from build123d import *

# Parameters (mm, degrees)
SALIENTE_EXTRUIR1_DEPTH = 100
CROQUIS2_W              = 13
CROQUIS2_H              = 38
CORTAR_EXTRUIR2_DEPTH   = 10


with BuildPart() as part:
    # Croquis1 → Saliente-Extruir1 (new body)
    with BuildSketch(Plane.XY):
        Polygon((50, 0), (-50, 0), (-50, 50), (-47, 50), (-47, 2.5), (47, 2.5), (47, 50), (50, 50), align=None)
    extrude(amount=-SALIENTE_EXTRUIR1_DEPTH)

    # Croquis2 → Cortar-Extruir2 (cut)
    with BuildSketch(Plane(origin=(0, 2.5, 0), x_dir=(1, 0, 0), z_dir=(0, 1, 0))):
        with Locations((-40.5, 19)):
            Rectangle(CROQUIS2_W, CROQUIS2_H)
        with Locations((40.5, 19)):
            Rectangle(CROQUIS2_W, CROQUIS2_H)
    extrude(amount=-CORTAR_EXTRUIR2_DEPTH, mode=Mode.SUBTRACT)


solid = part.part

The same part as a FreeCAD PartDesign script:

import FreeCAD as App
import Part
import Sketcher
from FreeCAD import Vector
Q = App.Units.Quantity

doc = App.newDocument("Part")
body = doc.addObject("PartDesign::Body", "Body")

# Sketch on XY plane
sketch1 = body.newObject("Sketcher::SketchObject", "Sketch")
sketch1.AttachmentSupport = (doc.getObject("XY_Plane"), [""])
sketch1.MapMode = "FlatFace"
sketch1.addGeometry(Part.LineSegment(Vector(-50, 0, 0), Vector(50, 0, 0)), False)
sketch1.addGeometry(Part.LineSegment(Vector(50, 0, 0), Vector(50, 50, 0)), False)
sketch1.addGeometry(Part.LineSegment(Vector(50, 50, 0), Vector(47, 50, 0)), False)
sketch1.addGeometry(Part.LineSegment(Vector(47, 50, 0), Vector(47, 2.5, 0)), False)
sketch1.addGeometry(Part.LineSegment(Vector(47, 2.5, 0), Vector(-47, 2.5, 0)), False)
sketch1.addGeometry(Part.LineSegment(Vector(-47, 2.5, 0), Vector(-47, 50, 0)), False)
sketch1.addGeometry(Part.LineSegment(Vector(-47, 50, 0), Vector(-50, 50, 0)), False)
sketch1.addGeometry(Part.LineSegment(Vector(-50, 50, 0), Vector(-50, 0, 0)), False)
sketch1.addConstraint(Sketcher.Constraint("Coincident", 0, 2, 1, 1))
sketch1.addConstraint(Sketcher.Constraint("Coincident", 1, 2, 2, 1))
sketch1.addConstraint(Sketcher.Constraint("Coincident", 2, 2, 3, 1))
sketch1.addConstraint(Sketcher.Constraint("Coincident", 3, 2, 4, 1))
sketch1.addConstraint(Sketcher.Constraint("Coincident", 4, 2, 5, 1))
sketch1.addConstraint(Sketcher.Constraint("Coincident", 5, 2, 6, 1))
sketch1.addConstraint(Sketcher.Constraint("Coincident", 6, 2, 7, 1))
sketch1.addConstraint(Sketcher.Constraint("Coincident", 7, 2, 0, 1))
sketch1.addConstraint(Sketcher.Constraint("Horizontal", 0))
sketch1.addConstraint(Sketcher.Constraint("Vertical", 1))
sketch1.addConstraint(Sketcher.Constraint("Horizontal", 2))
sketch1.addConstraint(Sketcher.Constraint("Vertical", 3))
sketch1.addConstraint(Sketcher.Constraint("Horizontal", 4))
sketch1.addConstraint(Sketcher.Constraint("Vertical", 5))
sketch1.addConstraint(Sketcher.Constraint("Horizontal", 6))
sketch1.addConstraint(Sketcher.Constraint("Vertical", 7))
sketch1.addConstraint(Sketcher.Constraint("Symmetric", 0, 2, 7, 2, -1, 1))
sketch1.addConstraint(Sketcher.Constraint("Symmetric", 2, 2, 5, 2, -2))
sketch1.addConstraint(Sketcher.Constraint("DistanceX", 0, 1, 0, 2, Q("100 mm")))
sketch1.addConstraint(Sketcher.Constraint("DistanceX", 2, 2, 2, 1, Q("3 mm")))
sketch1.addConstraint(Sketcher.Constraint("DistanceY", 1, 1, 1, 2, Q("50 mm")))
sketch1.addConstraint(Sketcher.Constraint("DistanceY", 3, 2, 3, 1, Q("47.5 mm")))
pad1 = body.newObject("PartDesign::Pad", "Pad")
pad1.Profile = sketch1
pad1.Length = 100
pad1.Reversed = True

# Sketch on XZ plane
sketch2 = body.newObject("Sketcher::SketchObject", "Sketch001")
sketch2.AttachmentSupport = (doc.getObject("XZ_Plane"), [""])
sketch2.MapMode = "FlatFace"
sketch2.AttachmentOffset = App.Placement(Vector(0, 0, -2.5), App.Rotation())
sketch2.addGeometry(Part.LineSegment(Vector(-47, -38, 0), Vector(-47, 0, 0)), False)
sketch2.addGeometry(Part.LineSegment(Vector(-47, 0, 0), Vector(-34, 0, 0)), False)
sketch2.addGeometry(Part.LineSegment(Vector(-34, 0, 0), Vector(-34, -38, 0)), False)
sketch2.addGeometry(Part.LineSegment(Vector(-34, -38, 0), Vector(-47, -38, 0)), False)
sketch2.addGeometry(Part.LineSegment(Vector(34, -38, 0), Vector(34, 0, 0)), False)
sketch2.addGeometry(Part.LineSegment(Vector(34, 0, 0), Vector(47, 0, 0)), False)
sketch2.addGeometry(Part.LineSegment(Vector(47, 0, 0), Vector(47, -38, 0)), False)
sketch2.addGeometry(Part.LineSegment(Vector(47, -38, 0), Vector(34, -38, 0)), False)
sketch2.addConstraint(Sketcher.Constraint("Coincident", 0, 2, 1, 1))
sketch2.addConstraint(Sketcher.Constraint("Coincident", 1, 2, 2, 1))
sketch2.addConstraint(Sketcher.Constraint("Coincident", 2, 2, 3, 1))
sketch2.addConstraint(Sketcher.Constraint("Coincident", 3, 2, 0, 1))
sketch2.addConstraint(Sketcher.Constraint("Coincident", 4, 2, 5, 1))
sketch2.addConstraint(Sketcher.Constraint("Coincident", 5, 2, 6, 1))
sketch2.addConstraint(Sketcher.Constraint("Coincident", 6, 2, 7, 1))
sketch2.addConstraint(Sketcher.Constraint("Coincident", 7, 2, 4, 1))
sketch2.addConstraint(Sketcher.Constraint("Vertical", 0))
sketch2.addConstraint(Sketcher.Constraint("Horizontal", 1))
sketch2.addConstraint(Sketcher.Constraint("Vertical", 2))
sketch2.addConstraint(Sketcher.Constraint("Horizontal", 3))
sketch2.addConstraint(Sketcher.Constraint("Vertical", 4))
sketch2.addConstraint(Sketcher.Constraint("Horizontal", 5))
sketch2.addConstraint(Sketcher.Constraint("Vertical", 6))
sketch2.addConstraint(Sketcher.Constraint("Horizontal", 7))
sketch2.addConstraint(Sketcher.Constraint("Symmetric", 1, 2, 4, 2, -1, 1))
sketch2.addConstraint(Sketcher.Constraint("Symmetric", 0, 2, 5, 2, -2))
sketch2.addConstraint(Sketcher.Constraint("Horizontal", 3, 2, 6, 2))
sketch2.addConstraint(Sketcher.Constraint("DistanceX", 1, 1, 1, 2, Q("13 mm")))
sketch2.addConstraint(Sketcher.Constraint("DistanceY", 0, 1, 0, 2, Q("38 mm")))
sketch2.addConstraint(Sketcher.Constraint("DistanceX", 0, 2, -1, 1, Q("47 mm")))
pocket1 = body.newObject("PartDesign::Pocket", "Pocket")
pocket1.Profile = sketch2
pocket1.Length = 10
pocket1.Reversed = True

doc.recompute()
